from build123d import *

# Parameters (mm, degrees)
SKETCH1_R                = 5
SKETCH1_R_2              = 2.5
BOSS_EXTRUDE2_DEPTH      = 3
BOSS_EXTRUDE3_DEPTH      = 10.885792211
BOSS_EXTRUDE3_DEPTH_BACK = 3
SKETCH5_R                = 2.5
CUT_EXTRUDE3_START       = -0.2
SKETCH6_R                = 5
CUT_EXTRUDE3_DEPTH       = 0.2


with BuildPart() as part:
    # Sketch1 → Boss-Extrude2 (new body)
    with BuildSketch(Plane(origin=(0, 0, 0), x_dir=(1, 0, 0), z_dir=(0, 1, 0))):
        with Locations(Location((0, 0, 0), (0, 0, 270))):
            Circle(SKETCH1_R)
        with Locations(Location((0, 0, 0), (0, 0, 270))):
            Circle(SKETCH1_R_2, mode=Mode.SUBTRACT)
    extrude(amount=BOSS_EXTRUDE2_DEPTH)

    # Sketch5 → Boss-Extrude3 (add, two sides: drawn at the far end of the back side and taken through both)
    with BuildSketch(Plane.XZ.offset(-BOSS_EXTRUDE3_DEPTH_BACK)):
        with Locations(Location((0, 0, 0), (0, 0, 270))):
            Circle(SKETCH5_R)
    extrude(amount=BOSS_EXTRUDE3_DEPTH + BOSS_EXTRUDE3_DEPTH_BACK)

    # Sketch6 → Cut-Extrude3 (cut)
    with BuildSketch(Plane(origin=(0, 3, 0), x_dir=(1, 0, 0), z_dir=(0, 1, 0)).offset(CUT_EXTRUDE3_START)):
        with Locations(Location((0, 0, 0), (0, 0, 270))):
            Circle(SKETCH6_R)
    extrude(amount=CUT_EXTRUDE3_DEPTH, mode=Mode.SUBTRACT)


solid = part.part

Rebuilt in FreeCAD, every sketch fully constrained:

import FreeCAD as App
import Part
import Sketcher
Q = App.Units.Quantity

doc = App.newDocument("Part")
params = doc.addObject("Spreadsheet::Sheet", "Params")
for row, (alias, value) in enumerate([
    ("sketch1_diameter", "10 mm"),
    ("sketch1_diameter2", "5 mm"),
    ("pad1_length", "3 mm"),
    ("sketch2_diameter", "5 mm"),
    ("pad2_length", "10.885792 mm"),
    ("pad2_length2", "3 mm"),
    ("sketch3_diameter", "10 mm"),
    ("pocket1_length", "0.2 mm"),
], start=1):
    params.set(f"A{row}", alias)
    params.set(f"B{row}", "=" + value)
    params.setAlias(f"B{row}", alias)

body = doc.addObject("PartDesign::Body", "Body")

# Sketch on XZ plane
sketch1 = body.newObject("Sketcher::SketchObject", "Sketch")
sketch1.AttachmentSupport = (doc.getObject("XZ_Plane"), [""])
sketch1.MapMode = "FlatFace"
sketch1.addGeometry([
    Part.Circle(App.Vector(0, 0, 0), App.Vector(0, 0, 1), 5),
    Part.Circle(App.Vector(0, 0, 0), App.Vector(0, 0, 1), 2.5),
], False)
sketch1.addConstraint([
    Sketcher.Constraint("Coincident", 0, 3, -1, 1),
    Sketcher.Constraint("Coincident", 1, 3, -1, 1),
    Sketcher.Constraint("Diameter", 0, Q("10 mm")),
    Sketcher.Constraint("Diameter", 1, Q("5 mm")),
])
sketch1.setExpression("Constraints[2]", "Params.sketch1_diameter")
sketch1.setExpression("Constraints[3]", "Params.sketch1_diameter2")
pad1 = body.newObject("PartDesign::Pad", "Pad")
pad1.Profile = sketch1
pad1.setExpression("Length", "Params.pad1_length")
pad1.Reversed = True

# Sketch on XZ plane
sketch2 = body.newObject("Sketcher::SketchObject", "Sketch001")
sketch2.AttachmentSupport = (doc.getObject("XZ_Plane"), [""])
sketch2.MapMode = "FlatFace"
sketch2.addGeometry(Part.Circle(App.Vector(0, 0, 0), App.Vector(0, 0, 1), 2.5), False)
sketch2.addConstraint([
    Sketcher.Constraint("Coincident", 0, 3, -1, 1),
    Sketcher.Constraint("Diameter", 0, Q("5 mm")),
])
sketch2.setExpression("Constraints[1]", "Params.sketch2_diameter")
pad2 = body.newObject("PartDesign::Pad", "Pad001")
pad2.Profile = sketch2
pad2.Type = "TwoLengths"
pad2.setExpression("Length", "Params.pad2_length")
pad2.setExpression("Length2", "Params.pad2_length2")

# Sketch on XZ plane
sketch3 = body.newObject("Sketcher::SketchObject", "Sketch002")
sketch3.AttachmentSupport = (doc.getObject("XZ_Plane"), [""])
sketch3.MapMode = "FlatFace"
sketch3.AttachmentOffset = App.Placement(App.Vector(0, 0, -2.8), App.Rotation())
sketch3.addGeometry(Part.Circle(App.Vector(0, 0, 0), App.Vector(0, 0, 1), 5), False)
sketch3.addConstraint([
    Sketcher.Constraint("Coincident", 0, 3, -1, 1),
    Sketcher.Constraint("Diameter", 0, Q("10 mm")),
])
sketch3.setExpression("Constraints[1]", "Params.sketch3_diameter")
pocket1 = body.newObject("PartDesign::Pocket", "Pocket")
pocket1.Profile = sketch3
pocket1.setExpression("Length", "Params.pocket1_length")

doc.recompute()
